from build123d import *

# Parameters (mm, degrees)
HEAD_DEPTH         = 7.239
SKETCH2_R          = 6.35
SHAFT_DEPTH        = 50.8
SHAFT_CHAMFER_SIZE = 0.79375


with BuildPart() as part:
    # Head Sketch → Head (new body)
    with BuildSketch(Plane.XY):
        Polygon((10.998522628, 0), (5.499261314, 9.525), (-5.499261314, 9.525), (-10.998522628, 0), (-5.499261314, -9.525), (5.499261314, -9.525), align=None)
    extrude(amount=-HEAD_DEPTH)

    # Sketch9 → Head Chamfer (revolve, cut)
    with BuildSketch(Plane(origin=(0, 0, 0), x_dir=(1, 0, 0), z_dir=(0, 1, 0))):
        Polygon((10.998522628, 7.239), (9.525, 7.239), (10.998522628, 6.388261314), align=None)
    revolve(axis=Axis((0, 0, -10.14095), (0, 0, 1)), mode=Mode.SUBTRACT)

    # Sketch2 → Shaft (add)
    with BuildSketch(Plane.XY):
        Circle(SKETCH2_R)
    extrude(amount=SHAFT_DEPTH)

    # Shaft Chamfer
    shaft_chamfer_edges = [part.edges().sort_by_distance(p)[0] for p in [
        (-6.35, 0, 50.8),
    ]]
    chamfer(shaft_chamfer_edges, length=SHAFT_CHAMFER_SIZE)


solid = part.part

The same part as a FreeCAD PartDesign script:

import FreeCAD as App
import Part
import Sketcher

V = App.Vector
Q = App.Units.Quantity


def edges_at(feature, points):
    """Names of the edges that pass closest to the given points."""
    edges = feature.Shape.Edges
    near = lambda p: min(range(len(edges)), key=lambda i: edges[i].distToShape(Part.Vertex(*p))[0])
    return sorted({f"Edge{near(p) + 1}" for p in points})


def add_polygon(sketch, points):
    """Adds a closed chain of lines whose ends are joined by coincident constraints."""
    first, n = sketch.GeometryCount, len(points)
    for a, b in zip(points, points[1:] + points[:1]):
        sketch.addGeometry(Part.LineSegment(App.Vector(*a, 0), App.Vector(*b, 0)), False)
    for i in range(n):
        sketch.addConstraint(Sketcher.Constraint("Coincident", first + i, 2, first + (i + 1) % n, 1))

doc = App.newDocument("Part")
body = doc.addObject("PartDesign::Body", "Body")

sketch1 = body.newObject("Sketcher::SketchObject", "Sketch")
sketch1.AttachmentSupport = (doc.getObject("XY_Plane"), [""])
sketch1.MapMode = "FlatFace"
add_polygon(sketch1, [(11, 0), (5, 10), (-5, 10), (-11, 0), (-5, -10), (5, -10)])
sketch1.addConstraint([
    Sketcher.Constraint("Horizontal", 1),
    Sketcher.Constraint("Horizontal", 4),
    Sketcher.Constraint("Symmetric", 0, 2, 3, 2, -1, 1),
    Sketcher.Constraint("Symmetric", 2, 2, 5, 2, -1, 1),
    Sketcher.Constraint("PointOnObject", 2, 2, -1),
    Sketcher.Constraint("Parallel", 2, 5),
    Sketcher.Constraint("Vertical", 1, 2, 3, 2),
    Sketcher.Constraint("Angle", 0, Q("120 deg")),
    Sketcher.Constraint("DistanceY", 3, 2, 1, 2, Q("0.75 in")),
    Sketcher.Constraint("DistanceX", 1, 2, 1, 1, Q("10.998523 mm")),
])
pad1 = body.newObject("PartDesign::Pad", "Pad")
pad1.Profile = sketch1
pad1.Length = Q("0.285 in")
pad1.Reversed = True

sketch2 = body.newObject("Sketcher::SketchObject", "Sketch001")
sketch2.AttachmentSupport = (doc.getObject("XZ_Plane"), [""])
sketch2.MapMode = "FlatFace"
add_polygon(sketch2, [(11, -7.2), (9.5, -7.2), (11, -6.4)])
sketch2.addConstraint([
    Sketcher.Constraint("Horizontal", 0),
    Sketcher.Constraint("Vertical", 2),
    Sketcher.Constraint("Angle", 1, Q("30 deg")),
    Sketcher.Constraint("DistanceX", -1, 1, 0, 2, Q("0.375 in")),
    Sketcher.Constraint("DistanceY", 0, 2, -1, 1, Q("0.285 in")),
    Sketcher.Constraint("DistanceY", 2, 2, 2, 1, Q("0.850739 mm")),
])
groove = body.newObject("PartDesign::Groove", "Groove")
groove.Profile = sketch2
groove.ReferenceAxis = (sketch2, ["V_Axis"])
groove.Angle = 360

sketch3 = body.newObject("Sketcher::SketchObject", "Sketch002")
sketch3.AttachmentSupport = (doc.getObject("XY_Plane"), [""])
sketch3.MapMode = "FlatFace"
sketch3.addGeometry(Part.Circle(V(0, 0, 0), V(0, 0, 1), 6), False)
sketch3.addConstraint([
    Sketcher.Constraint("Coincident", 0, 3, -1, 1),
    Sketcher.Constraint("Diameter", 0, Q("0.5 in")),
])
pad2 = body.newObject("PartDesign::Pad", "Pad001")
pad2.Profile = sketch3
pad2.Length = Q("2 in")
doc.recompute()

chamfer = body.newObject("PartDesign::Chamfer", "Chamfer")
chamfer.Base = (pad2, edges_at(pad2, [(-6.35, 0, 50.8)]))
chamfer.Size = Q("0.03125 in")

doc.recompute()
